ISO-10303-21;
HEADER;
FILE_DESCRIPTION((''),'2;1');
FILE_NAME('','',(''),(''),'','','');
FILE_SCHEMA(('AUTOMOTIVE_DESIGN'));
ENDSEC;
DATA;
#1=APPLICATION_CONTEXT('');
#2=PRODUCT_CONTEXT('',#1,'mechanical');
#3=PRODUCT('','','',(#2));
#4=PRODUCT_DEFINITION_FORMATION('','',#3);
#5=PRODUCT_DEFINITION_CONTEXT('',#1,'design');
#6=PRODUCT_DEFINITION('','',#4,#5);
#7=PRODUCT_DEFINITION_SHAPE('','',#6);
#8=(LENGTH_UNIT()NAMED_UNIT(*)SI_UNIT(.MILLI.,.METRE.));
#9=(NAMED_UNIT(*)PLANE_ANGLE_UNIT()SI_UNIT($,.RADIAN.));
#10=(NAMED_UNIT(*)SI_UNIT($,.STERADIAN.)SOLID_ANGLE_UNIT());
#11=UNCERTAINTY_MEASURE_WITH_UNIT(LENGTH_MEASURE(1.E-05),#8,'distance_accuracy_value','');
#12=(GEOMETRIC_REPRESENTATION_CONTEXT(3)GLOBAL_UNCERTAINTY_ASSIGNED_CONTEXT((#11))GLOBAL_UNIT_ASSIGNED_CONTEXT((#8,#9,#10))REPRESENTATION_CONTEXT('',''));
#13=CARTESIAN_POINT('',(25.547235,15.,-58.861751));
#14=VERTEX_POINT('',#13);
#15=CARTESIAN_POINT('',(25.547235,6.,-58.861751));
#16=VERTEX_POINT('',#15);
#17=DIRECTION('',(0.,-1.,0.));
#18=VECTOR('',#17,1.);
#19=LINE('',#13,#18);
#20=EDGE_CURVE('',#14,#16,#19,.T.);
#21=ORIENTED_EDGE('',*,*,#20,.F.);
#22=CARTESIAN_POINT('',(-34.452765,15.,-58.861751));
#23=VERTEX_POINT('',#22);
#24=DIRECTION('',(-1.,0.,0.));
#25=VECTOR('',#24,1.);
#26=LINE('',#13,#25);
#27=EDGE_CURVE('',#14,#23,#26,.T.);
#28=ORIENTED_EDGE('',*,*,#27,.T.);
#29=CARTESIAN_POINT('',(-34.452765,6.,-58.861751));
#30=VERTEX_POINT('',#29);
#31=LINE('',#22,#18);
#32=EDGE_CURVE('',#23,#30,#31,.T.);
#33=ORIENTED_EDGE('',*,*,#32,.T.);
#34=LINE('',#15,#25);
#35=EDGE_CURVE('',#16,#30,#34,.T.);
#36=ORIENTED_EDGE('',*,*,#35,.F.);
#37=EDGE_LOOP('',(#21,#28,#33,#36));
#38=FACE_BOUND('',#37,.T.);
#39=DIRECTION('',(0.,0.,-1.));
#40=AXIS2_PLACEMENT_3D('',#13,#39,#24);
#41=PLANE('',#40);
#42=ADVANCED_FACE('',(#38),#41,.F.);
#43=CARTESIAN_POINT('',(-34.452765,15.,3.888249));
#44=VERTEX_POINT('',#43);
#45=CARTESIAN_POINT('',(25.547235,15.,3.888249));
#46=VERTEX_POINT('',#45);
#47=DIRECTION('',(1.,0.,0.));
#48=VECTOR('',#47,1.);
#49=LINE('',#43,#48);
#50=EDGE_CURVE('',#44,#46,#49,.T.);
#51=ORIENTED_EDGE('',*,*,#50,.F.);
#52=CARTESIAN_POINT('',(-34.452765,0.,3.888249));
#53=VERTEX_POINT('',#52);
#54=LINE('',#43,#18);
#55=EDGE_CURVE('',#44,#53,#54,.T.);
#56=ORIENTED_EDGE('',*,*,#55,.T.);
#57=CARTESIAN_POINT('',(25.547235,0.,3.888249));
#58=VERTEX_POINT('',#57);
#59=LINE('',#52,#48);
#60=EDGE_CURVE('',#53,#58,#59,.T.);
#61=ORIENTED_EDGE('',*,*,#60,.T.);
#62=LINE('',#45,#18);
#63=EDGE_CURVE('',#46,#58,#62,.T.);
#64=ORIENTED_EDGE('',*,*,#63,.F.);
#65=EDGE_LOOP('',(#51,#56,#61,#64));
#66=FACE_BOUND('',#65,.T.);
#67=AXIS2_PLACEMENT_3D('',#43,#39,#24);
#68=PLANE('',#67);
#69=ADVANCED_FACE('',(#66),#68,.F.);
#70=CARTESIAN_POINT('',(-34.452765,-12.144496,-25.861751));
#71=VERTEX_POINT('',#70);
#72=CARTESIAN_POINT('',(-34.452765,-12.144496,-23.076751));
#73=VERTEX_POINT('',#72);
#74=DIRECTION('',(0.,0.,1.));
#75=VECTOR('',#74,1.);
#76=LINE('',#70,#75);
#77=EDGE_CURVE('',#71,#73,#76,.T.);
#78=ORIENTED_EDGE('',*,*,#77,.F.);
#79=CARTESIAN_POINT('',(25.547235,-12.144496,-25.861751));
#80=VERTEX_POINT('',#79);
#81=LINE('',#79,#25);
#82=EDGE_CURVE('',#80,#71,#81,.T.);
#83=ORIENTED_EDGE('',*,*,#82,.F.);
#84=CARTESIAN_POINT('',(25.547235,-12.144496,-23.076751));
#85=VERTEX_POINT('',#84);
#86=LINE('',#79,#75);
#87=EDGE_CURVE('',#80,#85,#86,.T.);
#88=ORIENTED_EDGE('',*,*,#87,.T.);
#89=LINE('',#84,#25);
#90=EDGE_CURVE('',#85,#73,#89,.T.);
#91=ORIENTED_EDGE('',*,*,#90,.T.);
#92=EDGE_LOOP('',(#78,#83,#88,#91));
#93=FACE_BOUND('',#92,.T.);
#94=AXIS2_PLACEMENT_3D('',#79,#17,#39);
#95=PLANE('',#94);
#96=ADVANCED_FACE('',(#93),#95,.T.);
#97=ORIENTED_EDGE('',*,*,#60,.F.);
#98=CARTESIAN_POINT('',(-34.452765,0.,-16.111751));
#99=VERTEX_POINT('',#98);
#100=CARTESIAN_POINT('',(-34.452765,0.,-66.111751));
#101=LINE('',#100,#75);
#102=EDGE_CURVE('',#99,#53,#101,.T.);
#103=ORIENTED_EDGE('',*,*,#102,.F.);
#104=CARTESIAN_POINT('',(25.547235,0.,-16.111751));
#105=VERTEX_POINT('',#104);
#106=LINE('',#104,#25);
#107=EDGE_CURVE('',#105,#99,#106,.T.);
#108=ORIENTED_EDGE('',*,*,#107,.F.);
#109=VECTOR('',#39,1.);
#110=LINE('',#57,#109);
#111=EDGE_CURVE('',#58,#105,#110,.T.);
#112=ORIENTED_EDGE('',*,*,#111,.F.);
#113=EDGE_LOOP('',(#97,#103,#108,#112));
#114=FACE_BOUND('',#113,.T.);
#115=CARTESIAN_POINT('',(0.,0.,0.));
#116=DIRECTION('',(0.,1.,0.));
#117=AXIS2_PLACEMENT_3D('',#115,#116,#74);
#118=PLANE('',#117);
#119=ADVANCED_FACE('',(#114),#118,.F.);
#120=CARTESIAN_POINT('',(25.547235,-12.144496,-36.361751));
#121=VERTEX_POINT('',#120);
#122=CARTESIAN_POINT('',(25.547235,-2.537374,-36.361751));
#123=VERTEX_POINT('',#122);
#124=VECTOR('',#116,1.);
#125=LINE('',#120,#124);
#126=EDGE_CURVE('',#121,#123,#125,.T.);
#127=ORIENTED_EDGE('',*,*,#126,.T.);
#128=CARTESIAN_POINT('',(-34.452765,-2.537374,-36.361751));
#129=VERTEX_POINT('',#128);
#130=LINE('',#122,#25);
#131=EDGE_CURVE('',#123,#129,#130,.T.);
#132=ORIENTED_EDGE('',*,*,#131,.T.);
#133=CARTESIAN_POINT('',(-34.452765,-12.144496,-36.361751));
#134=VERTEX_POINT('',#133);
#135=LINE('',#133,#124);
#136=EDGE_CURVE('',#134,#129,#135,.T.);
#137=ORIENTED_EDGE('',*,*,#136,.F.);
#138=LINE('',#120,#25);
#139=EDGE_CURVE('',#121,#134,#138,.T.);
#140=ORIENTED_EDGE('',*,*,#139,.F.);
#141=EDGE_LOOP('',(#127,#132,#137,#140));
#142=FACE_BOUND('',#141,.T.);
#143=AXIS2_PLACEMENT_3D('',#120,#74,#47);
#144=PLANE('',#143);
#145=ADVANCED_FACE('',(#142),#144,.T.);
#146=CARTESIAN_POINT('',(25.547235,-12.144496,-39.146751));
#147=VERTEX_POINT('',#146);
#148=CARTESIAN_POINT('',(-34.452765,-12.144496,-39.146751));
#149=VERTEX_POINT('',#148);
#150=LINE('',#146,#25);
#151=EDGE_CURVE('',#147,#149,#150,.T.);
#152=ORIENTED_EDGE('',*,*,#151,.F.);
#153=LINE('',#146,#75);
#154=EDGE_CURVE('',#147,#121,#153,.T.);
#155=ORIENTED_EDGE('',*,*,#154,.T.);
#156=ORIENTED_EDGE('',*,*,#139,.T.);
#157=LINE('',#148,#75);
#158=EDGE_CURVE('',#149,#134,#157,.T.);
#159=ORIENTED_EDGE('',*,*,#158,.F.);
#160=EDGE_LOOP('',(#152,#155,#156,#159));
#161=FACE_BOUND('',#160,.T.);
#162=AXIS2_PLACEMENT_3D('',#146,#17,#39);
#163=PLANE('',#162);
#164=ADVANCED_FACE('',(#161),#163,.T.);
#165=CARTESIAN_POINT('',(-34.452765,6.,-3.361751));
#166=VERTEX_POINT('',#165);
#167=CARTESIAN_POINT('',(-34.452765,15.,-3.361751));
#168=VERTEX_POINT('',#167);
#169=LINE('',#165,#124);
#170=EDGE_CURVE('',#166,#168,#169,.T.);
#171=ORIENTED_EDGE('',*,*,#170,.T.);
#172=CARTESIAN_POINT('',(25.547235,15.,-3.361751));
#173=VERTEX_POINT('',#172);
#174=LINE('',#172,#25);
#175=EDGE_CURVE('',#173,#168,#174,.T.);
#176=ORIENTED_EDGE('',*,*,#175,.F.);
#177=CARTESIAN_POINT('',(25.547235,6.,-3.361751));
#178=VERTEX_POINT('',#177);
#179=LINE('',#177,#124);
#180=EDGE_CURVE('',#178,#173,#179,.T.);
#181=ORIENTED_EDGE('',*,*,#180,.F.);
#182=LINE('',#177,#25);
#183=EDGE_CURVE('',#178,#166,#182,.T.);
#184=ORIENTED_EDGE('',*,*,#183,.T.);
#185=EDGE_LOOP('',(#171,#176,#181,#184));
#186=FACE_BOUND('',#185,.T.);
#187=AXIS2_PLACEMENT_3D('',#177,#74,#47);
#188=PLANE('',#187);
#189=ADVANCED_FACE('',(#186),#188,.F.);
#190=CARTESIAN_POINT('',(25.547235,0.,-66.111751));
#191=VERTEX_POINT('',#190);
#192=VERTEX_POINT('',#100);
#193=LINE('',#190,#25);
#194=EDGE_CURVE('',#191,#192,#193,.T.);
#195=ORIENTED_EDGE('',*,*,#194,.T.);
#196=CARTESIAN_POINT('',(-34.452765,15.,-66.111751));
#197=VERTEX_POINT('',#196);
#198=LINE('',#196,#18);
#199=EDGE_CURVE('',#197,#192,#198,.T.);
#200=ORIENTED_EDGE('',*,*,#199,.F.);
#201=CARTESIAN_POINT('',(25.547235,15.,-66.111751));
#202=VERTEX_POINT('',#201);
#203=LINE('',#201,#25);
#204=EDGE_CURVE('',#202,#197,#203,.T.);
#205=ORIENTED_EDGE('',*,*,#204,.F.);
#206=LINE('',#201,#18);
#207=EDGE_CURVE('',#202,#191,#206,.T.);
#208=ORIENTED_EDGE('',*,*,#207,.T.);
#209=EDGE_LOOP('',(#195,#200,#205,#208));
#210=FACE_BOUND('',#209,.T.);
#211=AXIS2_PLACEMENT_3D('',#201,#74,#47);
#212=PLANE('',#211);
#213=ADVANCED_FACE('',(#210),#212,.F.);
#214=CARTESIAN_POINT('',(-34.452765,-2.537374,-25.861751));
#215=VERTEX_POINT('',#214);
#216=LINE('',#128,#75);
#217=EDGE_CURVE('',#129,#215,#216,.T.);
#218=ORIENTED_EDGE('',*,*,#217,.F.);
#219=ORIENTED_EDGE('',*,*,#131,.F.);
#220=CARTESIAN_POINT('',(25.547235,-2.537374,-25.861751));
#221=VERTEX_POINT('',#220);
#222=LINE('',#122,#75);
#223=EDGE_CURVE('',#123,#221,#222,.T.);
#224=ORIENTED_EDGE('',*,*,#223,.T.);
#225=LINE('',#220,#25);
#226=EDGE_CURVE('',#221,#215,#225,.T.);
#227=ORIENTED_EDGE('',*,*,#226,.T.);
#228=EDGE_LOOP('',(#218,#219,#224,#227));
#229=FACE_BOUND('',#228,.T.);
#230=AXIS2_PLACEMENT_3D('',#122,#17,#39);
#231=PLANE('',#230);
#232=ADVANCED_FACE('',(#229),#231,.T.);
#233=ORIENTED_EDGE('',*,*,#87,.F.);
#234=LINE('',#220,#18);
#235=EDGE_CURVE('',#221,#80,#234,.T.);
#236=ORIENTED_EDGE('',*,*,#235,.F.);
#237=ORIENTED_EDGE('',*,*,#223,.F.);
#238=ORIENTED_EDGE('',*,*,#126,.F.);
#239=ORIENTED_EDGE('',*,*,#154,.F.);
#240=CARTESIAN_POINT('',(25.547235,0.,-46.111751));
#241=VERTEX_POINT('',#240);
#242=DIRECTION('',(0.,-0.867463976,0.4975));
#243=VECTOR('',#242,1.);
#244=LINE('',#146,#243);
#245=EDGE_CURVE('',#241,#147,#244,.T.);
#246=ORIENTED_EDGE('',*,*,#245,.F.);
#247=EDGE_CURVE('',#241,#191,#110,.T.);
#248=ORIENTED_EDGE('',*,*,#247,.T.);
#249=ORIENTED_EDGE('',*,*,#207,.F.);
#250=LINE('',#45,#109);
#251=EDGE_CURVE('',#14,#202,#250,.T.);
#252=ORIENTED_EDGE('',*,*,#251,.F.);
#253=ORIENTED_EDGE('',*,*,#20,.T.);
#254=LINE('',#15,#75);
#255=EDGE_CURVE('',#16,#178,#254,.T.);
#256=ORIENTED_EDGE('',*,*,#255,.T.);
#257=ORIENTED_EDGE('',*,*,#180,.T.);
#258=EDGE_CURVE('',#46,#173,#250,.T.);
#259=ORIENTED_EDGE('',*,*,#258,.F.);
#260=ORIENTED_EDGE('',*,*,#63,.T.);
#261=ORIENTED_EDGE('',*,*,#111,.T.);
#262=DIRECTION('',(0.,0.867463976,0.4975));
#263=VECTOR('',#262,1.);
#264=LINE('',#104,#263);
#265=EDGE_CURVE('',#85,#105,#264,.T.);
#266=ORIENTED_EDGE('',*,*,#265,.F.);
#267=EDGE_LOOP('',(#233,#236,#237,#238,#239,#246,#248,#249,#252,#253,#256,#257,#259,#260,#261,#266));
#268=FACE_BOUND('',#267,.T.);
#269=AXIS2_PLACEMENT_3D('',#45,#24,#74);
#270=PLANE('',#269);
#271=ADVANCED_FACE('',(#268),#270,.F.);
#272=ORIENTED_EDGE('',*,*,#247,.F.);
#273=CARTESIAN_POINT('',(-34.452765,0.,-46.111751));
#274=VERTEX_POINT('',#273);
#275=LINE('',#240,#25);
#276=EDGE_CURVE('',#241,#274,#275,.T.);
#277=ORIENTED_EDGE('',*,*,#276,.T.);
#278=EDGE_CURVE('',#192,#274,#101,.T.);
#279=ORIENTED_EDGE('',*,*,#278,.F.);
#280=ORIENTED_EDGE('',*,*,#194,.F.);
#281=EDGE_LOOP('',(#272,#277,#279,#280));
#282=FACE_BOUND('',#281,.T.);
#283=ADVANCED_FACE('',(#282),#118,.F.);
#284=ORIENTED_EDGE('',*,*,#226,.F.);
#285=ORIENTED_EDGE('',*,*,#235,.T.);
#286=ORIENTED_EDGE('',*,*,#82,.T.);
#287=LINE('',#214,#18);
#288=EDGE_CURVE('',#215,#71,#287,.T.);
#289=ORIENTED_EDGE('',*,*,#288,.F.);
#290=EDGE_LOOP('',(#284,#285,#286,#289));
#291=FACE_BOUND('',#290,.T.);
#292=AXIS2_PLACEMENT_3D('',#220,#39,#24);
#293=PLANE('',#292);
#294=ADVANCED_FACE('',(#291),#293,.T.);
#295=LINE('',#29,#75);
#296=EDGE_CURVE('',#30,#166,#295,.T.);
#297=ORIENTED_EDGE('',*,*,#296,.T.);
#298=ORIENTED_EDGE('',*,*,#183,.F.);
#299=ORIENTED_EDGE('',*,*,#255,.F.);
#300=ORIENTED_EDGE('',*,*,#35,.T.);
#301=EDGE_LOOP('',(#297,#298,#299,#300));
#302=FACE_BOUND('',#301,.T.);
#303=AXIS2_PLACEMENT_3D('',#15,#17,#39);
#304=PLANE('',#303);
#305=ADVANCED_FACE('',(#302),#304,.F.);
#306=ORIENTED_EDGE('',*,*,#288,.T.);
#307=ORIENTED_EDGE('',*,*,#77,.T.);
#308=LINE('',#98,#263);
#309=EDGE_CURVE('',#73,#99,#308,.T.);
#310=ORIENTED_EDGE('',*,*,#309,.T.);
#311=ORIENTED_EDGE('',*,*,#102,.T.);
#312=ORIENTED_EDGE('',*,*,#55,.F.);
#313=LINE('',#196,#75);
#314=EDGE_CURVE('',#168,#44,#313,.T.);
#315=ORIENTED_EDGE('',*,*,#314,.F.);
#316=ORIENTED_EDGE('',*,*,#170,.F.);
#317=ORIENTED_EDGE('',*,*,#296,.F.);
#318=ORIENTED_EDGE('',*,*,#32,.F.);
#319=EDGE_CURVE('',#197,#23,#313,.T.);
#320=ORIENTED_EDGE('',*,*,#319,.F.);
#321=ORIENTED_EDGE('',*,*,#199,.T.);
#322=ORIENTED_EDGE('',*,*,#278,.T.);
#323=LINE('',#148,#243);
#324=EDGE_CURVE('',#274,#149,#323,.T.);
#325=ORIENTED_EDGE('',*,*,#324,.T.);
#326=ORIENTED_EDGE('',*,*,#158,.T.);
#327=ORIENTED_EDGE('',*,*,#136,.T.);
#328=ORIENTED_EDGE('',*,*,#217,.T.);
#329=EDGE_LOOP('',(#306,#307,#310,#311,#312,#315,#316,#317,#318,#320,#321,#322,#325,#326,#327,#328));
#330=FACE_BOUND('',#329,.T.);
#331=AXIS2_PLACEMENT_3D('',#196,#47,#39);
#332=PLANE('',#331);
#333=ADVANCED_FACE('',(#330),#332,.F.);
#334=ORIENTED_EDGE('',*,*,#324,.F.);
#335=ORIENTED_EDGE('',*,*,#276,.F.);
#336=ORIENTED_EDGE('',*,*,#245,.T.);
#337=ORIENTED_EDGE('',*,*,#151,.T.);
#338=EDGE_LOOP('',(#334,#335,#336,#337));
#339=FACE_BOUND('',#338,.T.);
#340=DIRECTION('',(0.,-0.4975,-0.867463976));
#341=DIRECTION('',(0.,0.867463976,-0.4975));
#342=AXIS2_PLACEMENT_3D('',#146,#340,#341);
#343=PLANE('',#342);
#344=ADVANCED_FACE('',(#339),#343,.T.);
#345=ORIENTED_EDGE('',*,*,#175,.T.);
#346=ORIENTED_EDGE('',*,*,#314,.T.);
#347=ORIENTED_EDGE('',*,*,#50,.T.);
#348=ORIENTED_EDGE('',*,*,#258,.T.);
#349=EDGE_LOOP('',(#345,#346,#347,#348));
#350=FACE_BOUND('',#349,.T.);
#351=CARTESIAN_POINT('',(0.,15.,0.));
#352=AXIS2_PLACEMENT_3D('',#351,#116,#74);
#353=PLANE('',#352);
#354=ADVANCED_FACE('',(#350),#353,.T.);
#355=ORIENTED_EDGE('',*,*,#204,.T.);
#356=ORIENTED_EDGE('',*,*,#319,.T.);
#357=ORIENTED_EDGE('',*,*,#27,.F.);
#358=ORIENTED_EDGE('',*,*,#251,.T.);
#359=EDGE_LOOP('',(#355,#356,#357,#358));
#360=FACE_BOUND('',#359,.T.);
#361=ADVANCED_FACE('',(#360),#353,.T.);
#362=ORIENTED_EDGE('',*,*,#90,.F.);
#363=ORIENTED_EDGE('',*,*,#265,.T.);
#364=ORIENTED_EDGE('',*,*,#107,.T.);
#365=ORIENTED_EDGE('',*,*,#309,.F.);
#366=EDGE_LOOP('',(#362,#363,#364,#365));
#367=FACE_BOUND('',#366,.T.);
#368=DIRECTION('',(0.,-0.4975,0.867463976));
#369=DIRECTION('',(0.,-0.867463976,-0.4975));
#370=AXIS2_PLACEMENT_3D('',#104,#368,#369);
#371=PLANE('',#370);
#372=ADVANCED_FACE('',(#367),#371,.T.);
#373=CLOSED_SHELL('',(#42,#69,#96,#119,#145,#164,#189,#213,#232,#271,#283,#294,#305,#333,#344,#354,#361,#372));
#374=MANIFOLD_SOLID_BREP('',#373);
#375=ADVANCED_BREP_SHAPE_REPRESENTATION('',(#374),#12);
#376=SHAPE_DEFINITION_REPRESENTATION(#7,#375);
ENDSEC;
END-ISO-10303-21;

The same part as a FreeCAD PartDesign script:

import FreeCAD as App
import Part
import Sketcher

V = App.Vector


def add_polygon(sketch, points):
    """Adds a closed chain of lines whose ends are joined by coincident constraints."""
    first, n = sketch.GeometryCount, len(points)
    for a, b in zip(points, points[1:] + points[:1]):
        sketch.addGeometry(Part.LineSegment(App.Vector(*a, 0), App.Vector(*b, 0)), False)
    for i in range(n):
        sketch.addConstraint(Sketcher.Constraint("Coincident", first + i, 2, first + (i + 1) % n, 1))

doc = App.newDocument("Part")
body = doc.addObject("PartDesign::Body", "Body")

# Sketch on XZ plane
sketch1 = doc.addObject("Sketcher::SketchObject", "Sketch")
body.addObject(sketch1)
sketch1.AttachmentSupport = (doc.XZ_Plane, [""])
sketch1.MapMode = "FlatFace"
add_polygon(sketch1, [(-34.452765, -66.111751), (-34.452765, 3.888249), (25.547235, 3.888249), (25.547235, -66.111751)])  # lines 0-3
sketch1.addConstraint([
    Sketcher.Constraint("Vertical", 0),
    Sketcher.Constraint("Horizontal", 1),
    Sketcher.Constraint("Vertical", 2),
    Sketcher.Constraint("Horizontal", 3),
    Sketcher.Constraint("DistanceX", 1, 1, 1, 2, 60.0),
    Sketcher.Constraint("DistanceY", 0, 1, 0, 2, 70.0),
    Sketcher.Constraint("DistanceY", -1, 1, 0, 2, 3.888249),
    Sketcher.Constraint("DistanceX", 0, 2, -1, 1, 34.452765),
])
pad1 = doc.addObject("PartDesign::Pad", "Pad")
body.addObject(pad1)
pad1.Profile = sketch1
pad1.Length = 15
pad1.Reversed = True

# Sketch on YZ plane
sketch2 = doc.addObject("Sketcher::SketchObject", "Sketch001")
body.addObject(sketch2)
sketch2.AttachmentSupport = (doc.YZ_Plane, [""])
sketch2.MapMode = "FlatFace"
sketch2.AttachmentOffset = App.Placement(V(0, 0, -34.452765), App.Rotation())
add_polygon(sketch2, [(15, -58.861751), (6, -58.861751), (6, -3.361751), (15, -3.361751)])  # lines 0-3
sketch2.addConstraint([
    Sketcher.Constraint("Horizontal", 0),
    Sketcher.Constraint("Vertical", 1),
    Sketcher.Constraint("Horizontal", 2),
    Sketcher.Constraint("Vertical", 3),
    Sketcher.Constraint("DistanceX", 0, 2, 0, 1, 9.0),
    Sketcher.Constraint("DistanceY", 1, 1, 1, 2, 55.5),
    Sketcher.Constraint("DistanceX", -1, 1, 0, 2, 6.0),
    Sketcher.Constraint("DistanceY", 0, 2, -1, 1, 58.861751),
])
pocket1 = doc.addObject("PartDesign::Pocket", "Pocket")
body.addObject(pocket1)
pocket1.Profile = sketch2
pocket1.Type = "ThroughAll"
pocket1.Reversed = True

# Sketch on YZ plane
sketch3 = doc.addObject("Sketcher::SketchObject", "Sketch002")
body.addObject(sketch3)
sketch3.AttachmentSupport = (doc.YZ_Plane, [""])
sketch3.MapMode = "FlatFace"
sketch3.AttachmentOffset = App.Placement(V(0, 0, -34.452765), App.Rotation())
add_polygon(sketch3, [(0, -16.111751), (0, -46.111751), (-12.144496, -39.146751), (-12.144496, -36.361751), (-2.537374, -36.361751), (-2.537374, -25.861751), (-12.144496, -25.861751), (-12.144496, -23.076751)])  # lines 0-7
sketch3.addConstraint([
    Sketcher.Constraint("Vertical", 0),
    Sketcher.Constraint("Vertical", 2),
    Sketcher.Constraint("Horizontal", 3),
    Sketcher.Constraint("Vertical", 4),
    Sketcher.Constraint("Horizontal", 5),
    Sketcher.Constraint("Vertical", 6),
    Sketcher.Constraint("PointOnObject", 0, 2, -2),
    Sketcher.Constraint("Vertical", 2, 2, 5, 2),
    Sketcher.Constraint("Equal", 2, 6),
    Sketcher.Constraint("Equal", 1, 7),
    Sketcher.Constraint("DistanceY", 0, 2, 0, 1, 30.0),
    Sketcher.Constraint("Distance", 1, 14.0),
    Sketcher.Constraint("DistanceY", 4, 1, 4, 2, 10.5),
    Sketcher.Constraint("DistanceY", 2, 1, 2, 2, 2.785),
    Sketcher.Constraint("DistanceX", 3, 1, 3, 2, 9.607122),
    Sketcher.Constraint("DistanceY", 0, 2, -1, 1, 46.111751),
])
pad2 = doc.addObject("PartDesign::Pad", "Pad001")
body.addObject(pad2)
pad2.Profile = sketch3
pad2.Length = 60

doc.recompute()
